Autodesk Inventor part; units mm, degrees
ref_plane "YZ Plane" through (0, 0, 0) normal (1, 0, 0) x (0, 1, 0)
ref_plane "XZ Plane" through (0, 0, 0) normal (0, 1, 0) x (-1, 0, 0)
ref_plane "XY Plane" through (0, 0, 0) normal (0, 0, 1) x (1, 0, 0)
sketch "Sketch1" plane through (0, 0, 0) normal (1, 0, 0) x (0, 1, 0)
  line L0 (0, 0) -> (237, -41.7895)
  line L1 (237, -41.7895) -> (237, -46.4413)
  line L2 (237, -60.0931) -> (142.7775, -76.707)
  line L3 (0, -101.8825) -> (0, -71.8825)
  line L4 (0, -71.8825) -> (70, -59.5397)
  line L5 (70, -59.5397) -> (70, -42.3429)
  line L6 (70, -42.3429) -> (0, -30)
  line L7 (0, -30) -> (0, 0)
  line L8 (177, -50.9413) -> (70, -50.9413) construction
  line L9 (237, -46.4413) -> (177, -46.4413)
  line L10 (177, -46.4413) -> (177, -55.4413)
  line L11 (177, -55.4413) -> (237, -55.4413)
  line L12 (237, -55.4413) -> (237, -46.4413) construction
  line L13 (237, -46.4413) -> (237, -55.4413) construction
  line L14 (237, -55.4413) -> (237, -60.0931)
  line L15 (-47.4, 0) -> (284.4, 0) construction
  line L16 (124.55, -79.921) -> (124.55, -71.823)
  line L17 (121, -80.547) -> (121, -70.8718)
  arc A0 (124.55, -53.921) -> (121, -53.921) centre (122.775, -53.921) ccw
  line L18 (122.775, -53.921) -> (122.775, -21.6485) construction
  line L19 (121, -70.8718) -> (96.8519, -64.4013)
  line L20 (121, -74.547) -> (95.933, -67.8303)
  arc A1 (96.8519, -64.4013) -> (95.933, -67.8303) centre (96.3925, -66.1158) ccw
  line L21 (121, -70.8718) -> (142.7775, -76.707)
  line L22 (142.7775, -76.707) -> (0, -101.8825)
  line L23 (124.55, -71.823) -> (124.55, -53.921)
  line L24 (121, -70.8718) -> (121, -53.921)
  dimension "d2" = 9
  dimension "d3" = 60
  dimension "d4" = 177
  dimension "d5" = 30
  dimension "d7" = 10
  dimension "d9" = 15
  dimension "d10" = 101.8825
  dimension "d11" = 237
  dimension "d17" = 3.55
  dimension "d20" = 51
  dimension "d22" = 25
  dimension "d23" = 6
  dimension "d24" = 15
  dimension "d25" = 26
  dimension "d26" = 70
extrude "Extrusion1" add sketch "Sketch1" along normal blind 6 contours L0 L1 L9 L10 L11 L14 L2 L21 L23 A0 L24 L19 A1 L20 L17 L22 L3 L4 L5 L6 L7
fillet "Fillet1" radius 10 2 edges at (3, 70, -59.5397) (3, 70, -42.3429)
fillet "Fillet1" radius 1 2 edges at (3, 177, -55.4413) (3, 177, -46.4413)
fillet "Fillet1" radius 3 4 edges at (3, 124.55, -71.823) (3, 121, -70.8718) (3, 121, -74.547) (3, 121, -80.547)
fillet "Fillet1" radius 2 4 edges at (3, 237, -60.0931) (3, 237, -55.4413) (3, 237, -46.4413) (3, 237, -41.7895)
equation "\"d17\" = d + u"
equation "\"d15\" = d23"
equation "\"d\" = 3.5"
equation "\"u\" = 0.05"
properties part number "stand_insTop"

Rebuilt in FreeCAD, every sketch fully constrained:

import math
import FreeCAD as App
import Part
import Sketcher
Q = App.Units.Quantity


def edges_at(feature, points):
    """Names of the edges that pass closest to the given points."""
    edges = feature.Shape.Edges
    near = lambda p: min(range(len(edges)), key=lambda i: edges[i].distToShape(Part.Vertex(*p))[0])
    return sorted({f"Edge{near(p) + 1}" for p in points})

doc = App.newDocument("Part")
body = doc.addObject("PartDesign::Body", "Body")

# Sketch on YZ plane
sketch1 = doc.addObject("Sketcher::SketchObject", "Sketch")
body.addObject(sketch1)
sketch1.AttachmentSupport = (doc.YZ_Plane, [""])
sketch1.MapMode = "FlatFace"
sketch1.addGeometry([
    Part.LineSegment(App.Vector(237, -41.8, 0), App.Vector(0, 0, 0)),  # 0
    Part.LineSegment(App.Vector(0, 0, 0), App.Vector(0, -30, 0)),  # 1
    Part.LineSegment(App.Vector(0, -30, 0), App.Vector(70, -42.3, 0)),  # 2
    Part.LineSegment(App.Vector(70, -42.3, 0), App.Vector(70, -59.5, 0)),  # 3
    Part.LineSegment(App.Vector(70, -59.5, 0), App.Vector(0, -71.9, 0)),  # 4
    Part.LineSegment(App.Vector(0, -71.9, 0), App.Vector(0, -101.9, 0)),  # 5
    Part.LineSegment(App.Vector(0, -101.9, 0), App.Vector(121, -80.5, 0)),  # 6
    Part.LineSegment(App.Vector(121, -80.5, 0), App.Vector(121, -74.5, 0)),  # 7
    Part.LineSegment(App.Vector(121, -74.5, 0), App.Vector(95.9, -67.8, 0)),  # 8
    Part.ArcOfCircle(Part.Circle(App.Vector(96.4, -66.1, 0), App.Vector(0, 0, 1), 1.8), math.radians(75), math.radians(255)),  # 9
    Part.LineSegment(App.Vector(96.9, -64.4, 0), App.Vector(121, -70.9, 0)),  # 10
    Part.LineSegment(App.Vector(121, -70.9, 0), App.Vector(121, -53.9, 0)),  # 11
    Part.ArcOfCircle(Part.Circle(App.Vector(122.8, -53.9, 0), App.Vector(0, 0, 1), 1.8), math.radians(0), math.radians(180)),  # 12
    Part.LineSegment(App.Vector(124.5, -53.9, 0), App.Vector(124.5, -71.8, 0)),  # 13
    Part.LineSegment(App.Vector(124.5, -71.8, 0), App.Vector(142.8, -76.7, 0)),  # 14
    Part.LineSegment(App.Vector(142.8, -76.7, 0), App.Vector(237, -60.1, 0)),  # 15
    Part.LineSegment(App.Vector(237, -60.1, 0), App.Vector(237, -55.4, 0)),  # 16
    Part.LineSegment(App.Vector(237, -55.4, 0), App.Vector(177, -55.4, 0)),  # 17
    Part.LineSegment(App.Vector(177, -55.4, 0), App.Vector(177, -46.4, 0)),  # 18
    Part.LineSegment(App.Vector(177, -46.4, 0), App.Vector(237, -46.4, 0)),  # 19
    Part.LineSegment(App.Vector(237, -46.4, 0), App.Vector(237, -41.8, 0)),  # 20
], False)
sketch1.addConstraint([
    Sketcher.Constraint("Coincident", 0, 2, 1, 1),
    Sketcher.Constraint("Coincident", 1, 2, 2, 1),
    Sketcher.Constraint("Coincident", 2, 2, 3, 1),
    Sketcher.Constraint("Coincident", 3, 2, 4, 1),
    Sketcher.Constraint("Coincident", 4, 2, 5, 1),
    Sketcher.Constraint("Coincident", 5, 2, 6, 1),
    Sketcher.Constraint("Coincident", 6, 2, 7, 1),
    Sketcher.Constraint("Coincident", 7, 2, 8, 1),
    Sketcher.Constraint("Tangent", 8, 2, 9, 2),
    Sketcher.Constraint("Tangent", 9, 1, 10, 1),
    Sketcher.Constraint("Coincident", 10, 2, 11, 1),
    Sketcher.Constraint("Tangent", 11, 2, 12, 2),
    Sketcher.Constraint("Tangent", 12, 1, 13, 1),
    Sketcher.Constraint("Coincident", 13, 2, 14, 1),
    Sketcher.Constraint("Coincident", 14, 2, 15, 1),
    Sketcher.Constraint("Coincident", 15, 2, 16, 1),
    Sketcher.Constraint("Coincident", 16, 2, 17, 1),
    Sketcher.Constraint("Coincident", 17, 2, 18, 1),
    Sketcher.Constraint("Coincident", 18, 2, 19, 1),
    Sketcher.Constraint("Coincident", 19, 2, 20, 1),
    Sketcher.Constraint("Coincident", 20, 2, 0, 1),
    Sketcher.Constraint("Vertical", 1),
    Sketcher.Constraint("Vertical", 3),
    Sketcher.Constraint("Vertical", 5),
    Sketcher.Constraint("Vertical", 7),
    Sketcher.Constraint("Vertical", 11),
    Sketcher.Constraint("Vertical", 13),
    Sketcher.Constraint("Vertical", 16),
    Sketcher.Constraint("Horizontal", 17),
    Sketcher.Constraint("Vertical", 18),
    Sketcher.Constraint("Horizontal", 19),
    Sketcher.Constraint("Vertical", 20),
    Sketcher.Constraint("Coincident", 0, 2, -1, 1),
    Sketcher.Constraint("Equal", 9, 12),
    Sketcher.Constraint("PointOnObject", 4, 2, -2),
    Sketcher.Constraint("Parallel", 0, 2),
    Sketcher.Constraint("Parallel", 4, 6),
    Sketcher.Constraint("Parallel", 8, 10),
    Sketcher.Constraint("Parallel", 10, 14),
    Sketcher.Constraint("Parallel", 6, 15),
    Sketcher.Constraint("Vertical", 7, 2, 10, 2),
    Sketcher.Constraint("Vertical", 16, 2, 19, 2),
    Sketcher.Constraint("Equal", 1, 5),
    Sketcher.Constraint("Equal", 16, 20),
    Sketcher.Constraint("Equal", 2, 4),
    Sketcher.Constraint("DistanceX", 17, 2, 17, 1, 60.0),
    Sketcher.Constraint("DistanceY", 1, 2, 1, 1, 30.0),
    Sketcher.Constraint("DistanceY", 7, 1, 7, 2, 6.0),
    Sketcher.Constraint("DistanceY", 18, 1, 18, 2, 9.0),
    Sketcher.Constraint("Angle", 2, Q("-10 deg")),
    Sketcher.Constraint("Angle", 10, Q("-15 deg")),
    Sketcher.Constraint("Distance", 10, 25.0),
    Sketcher.Constraint("DistanceX", -1, 1, 2, 2, 70.0),
    Sketcher.Constraint("DistanceX", -1, 1, 15, 2, 237.0),
    Sketcher.Constraint("Radius", 9, 1.775),
    Sketcher.Constraint("DistanceX", 3, 2, 6, 2, 51.0),
    Sketcher.Constraint("DistanceY", 5, 2, -1, 1, 101.8825),
    Sketcher.Constraint("DistanceY", 13, 2, 13, 1, 17.902),
    Sketcher.Constraint("DistanceY", 14, 2, 7, 2, 2.16),
    Sketcher.Constraint("DistanceY", 13, 2, 15, 2, 11.73),
])
pad1 = doc.addObject("PartDesign::Pad", "Pad")
body.addObject(pad1)
pad1.Profile = sketch1
pad1.Length = 6
doc.recompute()

fillet = doc.addObject("PartDesign::Fillet", "Fillet")
body.addObject(fillet)
fillet.Base = (pad1, edges_at(pad1, [(3, 70, -59.54), (3, 70, -42.343)]))
fillet.Radius = 10
doc.recompute()

fillet2 = doc.addObject("PartDesign::Fillet", "Fillet001")
body.addObject(fillet2)
fillet2.Base = (fillet, edges_at(fillet, [(3, 177, -55.441), (3, 177, -46.441)]))
fillet2.Radius = 1
doc.recompute()

fillet3 = doc.addObject("PartDesign::Fillet", "Fillet002")
body.addObject(fillet3)
fillet3.Base = (fillet2, edges_at(fillet2, [
    (3, 124.55, -71.823),
    (3, 121, -70.872),
    (3, 121, -74.547),
    (3, 121, -80.547),
]))
fillet3.Radius = 3
doc.recompute()

fillet4 = doc.addObject("PartDesign::Fillet", "Fillet003")
body.addObject(fillet4)
fillet4.Base = (fillet3, edges_at(fillet3, [
    (3, 237, -60.093),
    (3, 237, -55.441),
    (3, 237, -46.441),
    (3, 237, -41.789),
]))
fillet4.Radius = 2

doc.recompute()
